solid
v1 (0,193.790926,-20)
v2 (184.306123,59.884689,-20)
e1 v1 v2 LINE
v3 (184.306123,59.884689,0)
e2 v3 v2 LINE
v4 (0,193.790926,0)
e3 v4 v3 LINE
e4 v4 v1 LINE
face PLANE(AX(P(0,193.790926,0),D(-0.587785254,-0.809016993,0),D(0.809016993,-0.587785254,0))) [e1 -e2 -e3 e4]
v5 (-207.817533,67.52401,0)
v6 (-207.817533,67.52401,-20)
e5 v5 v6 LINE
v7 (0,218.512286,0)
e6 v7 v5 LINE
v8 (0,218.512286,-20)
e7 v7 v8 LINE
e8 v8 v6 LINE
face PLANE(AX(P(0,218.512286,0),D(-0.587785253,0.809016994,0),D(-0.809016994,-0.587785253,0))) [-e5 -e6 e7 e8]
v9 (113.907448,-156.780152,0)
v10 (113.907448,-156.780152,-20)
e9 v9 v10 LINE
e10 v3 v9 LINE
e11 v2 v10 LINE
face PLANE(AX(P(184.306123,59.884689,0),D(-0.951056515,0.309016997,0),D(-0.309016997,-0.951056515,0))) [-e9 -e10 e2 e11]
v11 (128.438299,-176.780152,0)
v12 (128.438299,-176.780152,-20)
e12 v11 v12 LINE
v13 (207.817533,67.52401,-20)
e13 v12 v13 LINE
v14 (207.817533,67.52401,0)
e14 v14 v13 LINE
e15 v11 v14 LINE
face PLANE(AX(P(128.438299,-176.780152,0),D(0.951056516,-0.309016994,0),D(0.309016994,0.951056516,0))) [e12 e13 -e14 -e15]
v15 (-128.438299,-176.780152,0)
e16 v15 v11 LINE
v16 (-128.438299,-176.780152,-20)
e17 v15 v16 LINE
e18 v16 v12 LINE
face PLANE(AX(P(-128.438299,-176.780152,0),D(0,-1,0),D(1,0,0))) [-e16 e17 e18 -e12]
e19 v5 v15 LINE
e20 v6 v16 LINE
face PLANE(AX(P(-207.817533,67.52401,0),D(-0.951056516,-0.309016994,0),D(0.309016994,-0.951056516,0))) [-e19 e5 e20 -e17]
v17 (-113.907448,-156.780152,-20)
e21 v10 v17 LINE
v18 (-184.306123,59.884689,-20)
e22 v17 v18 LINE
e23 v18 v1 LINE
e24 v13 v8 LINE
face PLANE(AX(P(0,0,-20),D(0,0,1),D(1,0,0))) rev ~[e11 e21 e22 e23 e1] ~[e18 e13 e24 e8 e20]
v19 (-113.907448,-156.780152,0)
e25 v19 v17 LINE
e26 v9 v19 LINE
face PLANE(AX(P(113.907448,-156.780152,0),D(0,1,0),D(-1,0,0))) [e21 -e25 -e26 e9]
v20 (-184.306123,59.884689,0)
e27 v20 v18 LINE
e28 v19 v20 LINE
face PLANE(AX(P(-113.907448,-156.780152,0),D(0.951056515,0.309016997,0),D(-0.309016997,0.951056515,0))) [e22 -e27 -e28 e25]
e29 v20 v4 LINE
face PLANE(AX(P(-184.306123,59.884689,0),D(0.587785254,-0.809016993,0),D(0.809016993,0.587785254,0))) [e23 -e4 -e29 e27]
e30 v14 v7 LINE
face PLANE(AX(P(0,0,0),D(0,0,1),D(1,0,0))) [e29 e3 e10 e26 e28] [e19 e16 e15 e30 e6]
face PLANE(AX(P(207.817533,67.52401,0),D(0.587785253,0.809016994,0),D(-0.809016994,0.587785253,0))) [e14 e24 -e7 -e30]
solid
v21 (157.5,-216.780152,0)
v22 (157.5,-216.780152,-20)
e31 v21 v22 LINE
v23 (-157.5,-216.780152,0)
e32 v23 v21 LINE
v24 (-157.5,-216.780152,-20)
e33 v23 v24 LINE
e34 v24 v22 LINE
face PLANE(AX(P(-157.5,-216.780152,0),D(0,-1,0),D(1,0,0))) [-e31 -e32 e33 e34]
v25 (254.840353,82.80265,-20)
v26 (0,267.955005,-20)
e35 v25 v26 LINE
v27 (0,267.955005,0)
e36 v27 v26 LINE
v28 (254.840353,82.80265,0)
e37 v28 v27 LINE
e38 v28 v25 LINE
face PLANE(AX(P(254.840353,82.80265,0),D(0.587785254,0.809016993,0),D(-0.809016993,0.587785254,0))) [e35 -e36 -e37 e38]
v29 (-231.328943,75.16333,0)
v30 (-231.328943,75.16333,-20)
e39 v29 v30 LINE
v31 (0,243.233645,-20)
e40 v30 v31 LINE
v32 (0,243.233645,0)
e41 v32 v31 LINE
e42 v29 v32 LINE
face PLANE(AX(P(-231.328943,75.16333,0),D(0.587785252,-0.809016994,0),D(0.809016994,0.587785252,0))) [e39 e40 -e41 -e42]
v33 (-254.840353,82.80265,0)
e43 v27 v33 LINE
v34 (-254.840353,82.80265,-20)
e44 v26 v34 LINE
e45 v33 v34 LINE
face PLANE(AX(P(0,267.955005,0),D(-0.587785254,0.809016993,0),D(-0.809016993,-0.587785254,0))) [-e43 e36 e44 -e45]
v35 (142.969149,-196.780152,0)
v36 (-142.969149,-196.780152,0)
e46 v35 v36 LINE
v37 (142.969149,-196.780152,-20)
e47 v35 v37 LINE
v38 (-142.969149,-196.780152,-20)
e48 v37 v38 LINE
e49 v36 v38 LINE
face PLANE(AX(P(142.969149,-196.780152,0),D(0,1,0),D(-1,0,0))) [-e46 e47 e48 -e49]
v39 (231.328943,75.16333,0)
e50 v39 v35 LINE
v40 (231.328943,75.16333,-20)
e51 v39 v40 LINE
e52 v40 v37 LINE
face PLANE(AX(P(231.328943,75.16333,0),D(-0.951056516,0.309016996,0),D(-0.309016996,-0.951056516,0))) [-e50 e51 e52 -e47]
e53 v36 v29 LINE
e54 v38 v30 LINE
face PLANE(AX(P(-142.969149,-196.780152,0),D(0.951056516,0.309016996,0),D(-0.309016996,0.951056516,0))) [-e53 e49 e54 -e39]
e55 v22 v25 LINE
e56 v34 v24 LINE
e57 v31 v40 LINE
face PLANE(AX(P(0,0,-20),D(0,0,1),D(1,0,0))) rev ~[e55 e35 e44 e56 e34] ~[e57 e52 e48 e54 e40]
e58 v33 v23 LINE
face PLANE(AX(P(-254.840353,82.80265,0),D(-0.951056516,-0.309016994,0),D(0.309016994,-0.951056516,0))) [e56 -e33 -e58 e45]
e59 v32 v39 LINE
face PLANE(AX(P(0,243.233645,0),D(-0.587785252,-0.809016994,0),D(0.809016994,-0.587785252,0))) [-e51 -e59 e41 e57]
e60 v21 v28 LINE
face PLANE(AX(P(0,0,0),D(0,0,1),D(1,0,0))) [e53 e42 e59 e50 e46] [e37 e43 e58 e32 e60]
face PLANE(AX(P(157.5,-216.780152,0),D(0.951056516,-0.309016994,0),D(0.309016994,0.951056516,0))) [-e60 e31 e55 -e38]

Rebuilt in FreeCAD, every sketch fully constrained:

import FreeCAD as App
import Part
import Sketcher

V = App.Vector
Q = App.Units.Quantity

doc = App.newDocument("Part")
body = doc.addObject("PartDesign::Body", "Body")
body.AllowCompound = True

sketch1 = doc.addObject("Sketcher::SketchObject", "Sketch")
body.addObject(sketch1)
sketch1.AttachmentSupport = (doc.XY_Plane, [""])
sketch1.MapMode = "FlatFace"
sketch1.addGeometry([
    Part.LineSegment(V(-157.5, -216.780152, 0), V(157.5, -216.780152, 0)),
    Part.LineSegment(V(157.5, -216.780152, 0), V(254.840353, 82.80265, 0)),
    Part.LineSegment(V(254.840353, 82.80265, 0), V(0, 267.955005, 0)),
    Part.LineSegment(V(0, 267.955005, 0), V(-254.840353, 82.80265, 0)),
    Part.LineSegment(V(-254.840353, 82.80265, 0), V(-157.5, -216.780152, 0)),
    Part.LineSegment(V(-142.969149, -196.780152, 0), V(-231.328943, 75.16333, 0)),
    Part.LineSegment(V(-231.328943, 75.16333, 0), V(0, 243.233645, 0)),
    Part.LineSegment(V(0, 243.233645, 0), V(231.328943, 75.16333, 0)),
    Part.LineSegment(V(231.328943, 75.16333, 0), V(142.969149, -196.780152, 0)),
    Part.LineSegment(V(142.969149, -196.780152, 0), V(-142.969149, -196.780152, 0)),
    Part.LineSegment(V(207.817533, 67.52401, 0), V(0, 218.512286, 0)),
    Part.LineSegment(V(0, 218.512286, 0), V(-207.817533, 67.52401, 0)),
    Part.LineSegment(V(-207.817533, 67.52401, 0), V(-128.438299, -176.780152, 0)),
    Part.LineSegment(V(-128.438299, -176.780152, 0), V(128.438299, -176.780152, 0)),
    Part.LineSegment(V(128.438299, -176.780152, 0), V(207.817533, 67.52401, 0)),
    Part.LineSegment(V(-113.907448, -156.780152, 0), V(-184.306123, 59.884689, 0)),
    Part.LineSegment(V(-184.306123, 59.884689, 0), V(0, 193.790926, 0)),
    Part.LineSegment(V(0, 193.790926, 0), V(184.306123, 59.884689, 0)),
    Part.LineSegment(V(184.306123, 59.884689, 0), V(113.907448, -156.780152, 0)),
    Part.LineSegment(V(113.907448, -156.780152, 0), V(-113.907448, -156.780152, 0)),
], False)
sketch1.addConstraint([
    Sketcher.Constraint("Coincident", 0, 2, 1, 1),
    Sketcher.Constraint("Coincident", 1, 2, 2, 1),
    Sketcher.Constraint("Coincident", 2, 2, 3, 1),
    Sketcher.Constraint("Coincident", 3, 2, 4, 1),
    Sketcher.Constraint("Coincident", 4, 2, 0, 1),
    Sketcher.Constraint("Coincident", 5, 2, 6, 1),
    Sketcher.Constraint("Coincident", 6, 2, 7, 1),
    Sketcher.Constraint("Coincident", 7, 2, 8, 1),
    Sketcher.Constraint("Coincident", 8, 2, 9, 1),
    Sketcher.Constraint("Coincident", 9, 2, 5, 1),
    Sketcher.Constraint("Coincident", 10, 2, 11, 1),
    Sketcher.Constraint("Coincident", 11, 2, 12, 1),
    Sketcher.Constraint("Coincident", 12, 2, 13, 1),
    Sketcher.Constraint("Coincident", 13, 2, 14, 1),
    Sketcher.Constraint("Coincident", 14, 2, 10, 1),
    Sketcher.Constraint("Coincident", 15, 2, 16, 1),
    Sketcher.Constraint("Coincident", 16, 2, 17, 1),
    Sketcher.Constraint("Coincident", 17, 2, 18, 1),
    Sketcher.Constraint("Coincident", 18, 2, 19, 1),
    Sketcher.Constraint("Coincident", 19, 2, 15, 1),
    Sketcher.Constraint("Horizontal", 0),
    Sketcher.Constraint("Horizontal", 9),
    Sketcher.Constraint("Horizontal", 13),
    Sketcher.Constraint("Horizontal", 19),
    Sketcher.Constraint("Symmetric", 1, 2, 3, 2, -2),
    Sketcher.Constraint("Symmetric", 5, 2, 7, 2, -2),
    Sketcher.Constraint("Symmetric", 11, 2, 14, 2, -2),
    Sketcher.Constraint("Symmetric", 15, 2, 17, 2, -2),
    Sketcher.Constraint("PointOnObject", 2, 2, -2),
    Sketcher.Constraint("PointOnObject", 6, 2, -2),
    Sketcher.Constraint("PointOnObject", 10, 2, -2),
    Sketcher.Constraint("PointOnObject", 16, 2, -2),
    Sketcher.Constraint("Parallel", 4, 5),
    Sketcher.Constraint("Parallel", 3, 6),
    Sketcher.Constraint("Parallel", 1, 8),
    Sketcher.Constraint("Parallel", 7, 10),
    Sketcher.Constraint("Parallel", 5, 12),
    Sketcher.Constraint("Parallel", 8, 14),
    Sketcher.Constraint("Parallel", 12, 15),
    Sketcher.Constraint("Parallel", 11, 16),
    Sketcher.Constraint("Parallel", 14, 18),
    Sketcher.Constraint("Equal", 1, 2),
    Sketcher.Constraint("Equal", 3, 4),
    Sketcher.Constraint("Equal", 5, 6),
    Sketcher.Constraint("Equal", 11, 12),
    Sketcher.Constraint("Equal", 15, 16),
    Sketcher.Constraint("DistanceX", 0, 1, 0, 2, 315.0),
    Sketcher.Constraint("Angle", 1, Q("72 deg")),
    Sketcher.Constraint("Angle", 2, Q("144 deg")),
    Sketcher.Constraint("DistanceY", 0, 2, 8, 2, 20.0),
    Sketcher.Constraint("DistanceY", 9, 2, 12, 2, 20.0),
    Sketcher.Constraint("DistanceY", 13, 2, 18, 2, 20.0),
    Sketcher.Constraint("DistanceX", 13, 1, 13, 2, 256.876598),
    Sketcher.Constraint("Distance", 5, 285.938299),
    Sketcher.Constraint("DistanceX", 18, 2, 8, 2, 29.061701),
    Sketcher.Constraint("DistanceY", 0, 2, -1, 1, 216.780152),
])
pad1 = doc.addObject("PartDesign::Pad", "Pad")
body.addObject(pad1)
pad1.Profile = sketch1
pad1.Length = 20
pad1.Reversed = True

doc.recompute()
